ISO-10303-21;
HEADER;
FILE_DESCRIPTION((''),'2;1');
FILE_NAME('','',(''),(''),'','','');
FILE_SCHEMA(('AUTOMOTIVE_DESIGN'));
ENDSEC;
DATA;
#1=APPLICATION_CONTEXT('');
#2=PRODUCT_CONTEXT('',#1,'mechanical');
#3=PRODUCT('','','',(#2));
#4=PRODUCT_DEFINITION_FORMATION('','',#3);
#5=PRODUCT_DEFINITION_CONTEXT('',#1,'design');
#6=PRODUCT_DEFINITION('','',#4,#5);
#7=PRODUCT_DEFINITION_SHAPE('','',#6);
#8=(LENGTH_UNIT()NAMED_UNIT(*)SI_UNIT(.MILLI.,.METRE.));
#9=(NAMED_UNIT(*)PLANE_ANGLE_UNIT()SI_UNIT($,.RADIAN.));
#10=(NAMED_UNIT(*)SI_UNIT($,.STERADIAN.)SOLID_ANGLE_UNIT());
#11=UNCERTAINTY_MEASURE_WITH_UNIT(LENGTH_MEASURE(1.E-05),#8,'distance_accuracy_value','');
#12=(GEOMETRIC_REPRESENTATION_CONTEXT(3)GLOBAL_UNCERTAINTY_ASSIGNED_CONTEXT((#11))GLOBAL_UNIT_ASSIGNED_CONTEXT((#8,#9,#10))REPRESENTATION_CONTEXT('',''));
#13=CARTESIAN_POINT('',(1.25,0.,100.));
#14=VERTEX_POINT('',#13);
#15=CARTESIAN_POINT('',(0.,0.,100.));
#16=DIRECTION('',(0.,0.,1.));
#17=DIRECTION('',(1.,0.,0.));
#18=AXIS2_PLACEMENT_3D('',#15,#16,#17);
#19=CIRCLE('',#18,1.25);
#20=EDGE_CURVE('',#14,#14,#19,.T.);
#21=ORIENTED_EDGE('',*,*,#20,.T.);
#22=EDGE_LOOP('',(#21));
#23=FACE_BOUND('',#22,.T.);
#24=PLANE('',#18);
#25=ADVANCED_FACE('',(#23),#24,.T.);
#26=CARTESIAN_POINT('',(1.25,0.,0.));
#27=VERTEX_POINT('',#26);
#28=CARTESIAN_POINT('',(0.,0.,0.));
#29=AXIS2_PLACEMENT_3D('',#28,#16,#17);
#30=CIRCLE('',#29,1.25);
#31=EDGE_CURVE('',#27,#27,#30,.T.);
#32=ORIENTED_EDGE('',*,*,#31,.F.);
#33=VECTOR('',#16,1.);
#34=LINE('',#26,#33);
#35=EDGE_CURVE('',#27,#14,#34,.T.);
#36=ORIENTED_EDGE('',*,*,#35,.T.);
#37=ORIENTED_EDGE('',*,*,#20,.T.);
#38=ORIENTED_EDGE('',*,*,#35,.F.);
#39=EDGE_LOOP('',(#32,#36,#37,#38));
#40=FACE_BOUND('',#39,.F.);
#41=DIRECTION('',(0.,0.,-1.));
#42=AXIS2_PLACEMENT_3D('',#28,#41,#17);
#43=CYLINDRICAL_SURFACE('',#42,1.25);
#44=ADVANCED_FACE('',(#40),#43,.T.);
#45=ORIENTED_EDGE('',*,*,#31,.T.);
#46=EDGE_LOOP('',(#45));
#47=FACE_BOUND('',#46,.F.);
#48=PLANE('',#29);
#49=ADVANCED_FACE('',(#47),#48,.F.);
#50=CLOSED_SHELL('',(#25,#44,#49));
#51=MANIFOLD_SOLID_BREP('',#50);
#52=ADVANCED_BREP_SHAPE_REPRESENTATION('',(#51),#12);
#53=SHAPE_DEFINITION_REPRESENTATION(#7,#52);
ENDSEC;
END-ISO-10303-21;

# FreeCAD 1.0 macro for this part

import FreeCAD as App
import Part
import Sketcher
from FreeCAD import Vector

doc = App.newDocument("Part")
body = doc.addObject("PartDesign::Body", "Body")

sketch1 = body.newObject("Sketcher::SketchObject", "Sketch")
sketch1.AttachmentSupport = (doc.getObject("XY_Plane"), [""])
sketch1.MapMode = "FlatFace"
sketch1.addGeometry(Part.Circle(Vector(0, 0, 0), Vector(0, 0, 1), 1.2), False)
sketch1.addConstraint(Sketcher.Constraint("Coincident", 0, 3, -1, 1))
sketch1.addConstraint(Sketcher.Constraint("Diameter", 0, 2.5))
pad1 = body.newObject("PartDesign::Pad", "Pad")
pad1.Profile = sketch1
pad1.Length = 100

doc.recompute()
